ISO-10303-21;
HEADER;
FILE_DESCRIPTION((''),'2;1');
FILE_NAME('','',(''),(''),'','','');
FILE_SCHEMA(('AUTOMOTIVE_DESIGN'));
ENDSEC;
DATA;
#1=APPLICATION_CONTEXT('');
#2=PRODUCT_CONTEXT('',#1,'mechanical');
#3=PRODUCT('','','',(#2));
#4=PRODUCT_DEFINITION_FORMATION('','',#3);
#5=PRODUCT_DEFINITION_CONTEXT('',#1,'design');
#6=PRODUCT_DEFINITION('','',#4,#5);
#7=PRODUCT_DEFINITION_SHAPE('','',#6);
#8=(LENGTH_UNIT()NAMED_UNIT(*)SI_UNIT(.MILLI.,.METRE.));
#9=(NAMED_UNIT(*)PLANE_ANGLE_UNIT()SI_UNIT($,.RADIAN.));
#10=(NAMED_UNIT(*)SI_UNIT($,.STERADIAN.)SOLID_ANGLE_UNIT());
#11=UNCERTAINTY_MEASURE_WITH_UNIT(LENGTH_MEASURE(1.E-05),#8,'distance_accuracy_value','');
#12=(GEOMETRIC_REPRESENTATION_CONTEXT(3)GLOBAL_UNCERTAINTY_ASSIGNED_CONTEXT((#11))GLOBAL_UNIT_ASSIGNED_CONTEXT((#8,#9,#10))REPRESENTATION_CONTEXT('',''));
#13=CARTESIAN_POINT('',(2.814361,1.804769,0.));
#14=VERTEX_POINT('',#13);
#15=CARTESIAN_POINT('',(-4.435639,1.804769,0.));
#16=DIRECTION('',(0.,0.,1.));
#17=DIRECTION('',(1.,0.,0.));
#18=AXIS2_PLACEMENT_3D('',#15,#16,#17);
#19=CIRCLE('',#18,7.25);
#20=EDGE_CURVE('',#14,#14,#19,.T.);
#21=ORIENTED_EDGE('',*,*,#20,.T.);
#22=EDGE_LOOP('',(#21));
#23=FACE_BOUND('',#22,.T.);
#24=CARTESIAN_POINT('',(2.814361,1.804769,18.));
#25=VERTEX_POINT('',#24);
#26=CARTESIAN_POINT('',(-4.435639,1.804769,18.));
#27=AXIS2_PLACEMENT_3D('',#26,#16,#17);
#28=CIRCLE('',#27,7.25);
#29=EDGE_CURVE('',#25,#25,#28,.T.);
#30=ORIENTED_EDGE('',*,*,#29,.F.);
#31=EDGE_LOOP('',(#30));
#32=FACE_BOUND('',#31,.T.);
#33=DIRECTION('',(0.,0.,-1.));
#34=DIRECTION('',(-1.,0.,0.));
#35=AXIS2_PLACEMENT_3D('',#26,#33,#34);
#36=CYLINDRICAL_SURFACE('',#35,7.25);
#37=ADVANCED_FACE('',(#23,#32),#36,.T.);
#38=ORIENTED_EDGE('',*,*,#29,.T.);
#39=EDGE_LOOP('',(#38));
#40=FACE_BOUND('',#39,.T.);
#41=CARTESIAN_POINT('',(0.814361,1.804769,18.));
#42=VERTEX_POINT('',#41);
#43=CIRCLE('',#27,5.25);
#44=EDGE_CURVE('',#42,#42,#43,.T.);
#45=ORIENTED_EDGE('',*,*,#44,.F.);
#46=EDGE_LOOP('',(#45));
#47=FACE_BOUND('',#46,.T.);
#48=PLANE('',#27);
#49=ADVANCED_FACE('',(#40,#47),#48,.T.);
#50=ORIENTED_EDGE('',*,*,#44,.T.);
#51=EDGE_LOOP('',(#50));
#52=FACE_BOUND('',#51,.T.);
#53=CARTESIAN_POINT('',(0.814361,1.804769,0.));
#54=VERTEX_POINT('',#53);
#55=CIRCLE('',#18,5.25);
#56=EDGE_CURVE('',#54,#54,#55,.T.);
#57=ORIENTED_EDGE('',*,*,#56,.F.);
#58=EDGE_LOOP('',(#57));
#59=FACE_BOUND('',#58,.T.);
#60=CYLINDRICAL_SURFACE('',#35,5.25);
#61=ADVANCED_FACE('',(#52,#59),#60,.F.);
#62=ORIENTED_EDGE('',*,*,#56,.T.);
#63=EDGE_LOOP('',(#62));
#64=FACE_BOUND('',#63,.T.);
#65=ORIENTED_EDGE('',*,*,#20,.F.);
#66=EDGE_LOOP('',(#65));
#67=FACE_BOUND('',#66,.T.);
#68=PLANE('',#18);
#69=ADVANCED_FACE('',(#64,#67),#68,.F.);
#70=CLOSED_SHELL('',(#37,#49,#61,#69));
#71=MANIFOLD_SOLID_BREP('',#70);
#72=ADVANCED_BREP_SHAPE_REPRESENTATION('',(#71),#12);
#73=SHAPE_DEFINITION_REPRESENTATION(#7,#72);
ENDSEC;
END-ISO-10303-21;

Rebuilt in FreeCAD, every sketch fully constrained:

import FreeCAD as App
import Part
import Sketcher
from FreeCAD import Vector

doc = App.newDocument("Part")
body = doc.addObject("PartDesign::Body", "Body")

# Sketch on XY plane
sketch1 = doc.addObject("Sketcher::SketchObject", "Sketch")
body.addObject(sketch1)
sketch1.AttachmentSupport = (doc.XY_Plane, [""])
sketch1.MapMode = "FlatFace"
sketch1.addGeometry(Part.Circle(Vector(-4, 2, 0), Vector(0, 0, 1), 7), False)
sketch1.addGeometry(Part.Circle(Vector(-4, 2, 0), Vector(0, 0, 1), 5), False)
sketch1.addConstraint(Sketcher.Constraint("Coincident", 1, 3, 0, 3))
sketch1.addConstraint(Sketcher.Constraint("Diameter", 0, 14.5))
sketch1.addConstraint(Sketcher.Constraint("Diameter", 1, 10.5))
sketch1.addConstraint(Sketcher.Constraint("DistanceX", 0, 3, -1, 1, 4.435639))
sketch1.addConstraint(Sketcher.Constraint("DistanceY", -1, 1, 0, 3, 1.804769))
pad1 = doc.addObject("PartDesign::Pad", "Pad")
body.addObject(pad1)
pad1.Profile = sketch1
pad1.Length = 18

doc.recompute()
